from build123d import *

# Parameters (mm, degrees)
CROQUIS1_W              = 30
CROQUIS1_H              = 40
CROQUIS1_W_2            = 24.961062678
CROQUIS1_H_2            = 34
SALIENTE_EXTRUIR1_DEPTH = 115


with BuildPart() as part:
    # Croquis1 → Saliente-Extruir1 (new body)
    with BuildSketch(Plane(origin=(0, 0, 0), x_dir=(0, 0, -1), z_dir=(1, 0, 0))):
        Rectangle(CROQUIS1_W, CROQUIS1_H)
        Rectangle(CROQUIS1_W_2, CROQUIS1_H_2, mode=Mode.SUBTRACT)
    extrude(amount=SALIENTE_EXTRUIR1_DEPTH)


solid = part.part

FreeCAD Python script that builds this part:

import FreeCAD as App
import Part
import Sketcher

V = App.Vector
Q = App.Units.Quantity

doc = App.newDocument("Part")
params = doc.addObject("Spreadsheet::Sheet", "Params")
for row, (alias, value) in enumerate([
    ("sketch1_width", "40 mm"),
    ("sketch1_width2", "34 mm"),
    ("sketch1_height", "30 mm"),
    ("pad1_length", "115 mm"),
], start=1):
    params.set(f"A{row}", alias)
    params.set(f"B{row}", "=" + value)
    params.setAlias(f"B{row}", alias)

body = doc.addObject("PartDesign::Body", "Body")

sketch1 = body.newObject("Sketcher::SketchObject", "Sketch")
sketch1.AttachmentSupport = (doc.getObject("YZ_Plane"), [""])
sketch1.MapMode = "FlatFace"
sketch1.addGeometry(Part.LineSegment(V(20, 15, 0), V(-20, 15, 0)), False)
sketch1.addGeometry(Part.LineSegment(V(-20, 15, 0), V(-20, -15, 0)), False)
sketch1.addGeometry(Part.LineSegment(V(-20, -15, 0), V(20, -15, 0)), False)
sketch1.addGeometry(Part.LineSegment(V(20, -15, 0), V(20, 15, 0)), False)
sketch1.addGeometry(Part.LineSegment(V(-17, -12, 0), V(-17, 12, 0)), False)
sketch1.addGeometry(Part.LineSegment(V(-17, 12, 0), V(17, 12, 0)), False)
sketch1.addGeometry(Part.LineSegment(V(17, 12, 0), V(17, -12, 0)), False)
sketch1.addGeometry(Part.LineSegment(V(17, -12, 0), V(-17, -12, 0)), False)
sketch1.addConstraint(Sketcher.Constraint("Coincident", 0, 2, 1, 1))
sketch1.addConstraint(Sketcher.Constraint("Coincident", 1, 2, 2, 1))
sketch1.addConstraint(Sketcher.Constraint("Coincident", 2, 2, 3, 1))
sketch1.addConstraint(Sketcher.Constraint("Coincident", 3, 2, 0, 1))
sketch1.addConstraint(Sketcher.Constraint("Coincident", 4, 2, 5, 1))
sketch1.addConstraint(Sketcher.Constraint("Coincident", 5, 2, 6, 1))
sketch1.addConstraint(Sketcher.Constraint("Coincident", 6, 2, 7, 1))
sketch1.addConstraint(Sketcher.Constraint("Coincident", 7, 2, 4, 1))
sketch1.addConstraint(Sketcher.Constraint("Horizontal", 0))
sketch1.addConstraint(Sketcher.Constraint("Vertical", 1))
sketch1.addConstraint(Sketcher.Constraint("Horizontal", 2))
sketch1.addConstraint(Sketcher.Constraint("Vertical", 3))
sketch1.addConstraint(Sketcher.Constraint("Vertical", 4))
sketch1.addConstraint(Sketcher.Constraint("Horizontal", 5))
sketch1.addConstraint(Sketcher.Constraint("Vertical", 6))
sketch1.addConstraint(Sketcher.Constraint("Horizontal", 7))
sketch1.addConstraint(Sketcher.Constraint("Symmetric", 0, 2, 2, 2, -1, 1))
sketch1.addConstraint(Sketcher.Constraint("Symmetric", 4, 2, 6, 2, -1, 1))
sketch1.addConstraint(Sketcher.Constraint("DistanceX", 0, 2, 0, 1, Q("40 mm")))
sketch1.addConstraint(Sketcher.Constraint("DistanceX", 5, 1, 5, 2, Q("34 mm")))
sketch1.addConstraint(Sketcher.Constraint("DistanceY", 1, 2, 1, 1, Q("30 mm")))
sketch1.addConstraint(Sketcher.Constraint("DistanceY", 4, 1, 4, 2, Q("24.961063 mm")))
sketch1.setExpression("Constraints[18]", "Params.sketch1_width")
sketch1.setExpression("Constraints[19]", "Params.sketch1_width2")
sketch1.setExpression("Constraints[20]", "Params.sketch1_height")
pad1 = body.newObject("PartDesign::Pad", "Pad")
pad1.Profile = sketch1
pad1.setExpression("Length", "Params.pad1_length")

doc.recompute()
